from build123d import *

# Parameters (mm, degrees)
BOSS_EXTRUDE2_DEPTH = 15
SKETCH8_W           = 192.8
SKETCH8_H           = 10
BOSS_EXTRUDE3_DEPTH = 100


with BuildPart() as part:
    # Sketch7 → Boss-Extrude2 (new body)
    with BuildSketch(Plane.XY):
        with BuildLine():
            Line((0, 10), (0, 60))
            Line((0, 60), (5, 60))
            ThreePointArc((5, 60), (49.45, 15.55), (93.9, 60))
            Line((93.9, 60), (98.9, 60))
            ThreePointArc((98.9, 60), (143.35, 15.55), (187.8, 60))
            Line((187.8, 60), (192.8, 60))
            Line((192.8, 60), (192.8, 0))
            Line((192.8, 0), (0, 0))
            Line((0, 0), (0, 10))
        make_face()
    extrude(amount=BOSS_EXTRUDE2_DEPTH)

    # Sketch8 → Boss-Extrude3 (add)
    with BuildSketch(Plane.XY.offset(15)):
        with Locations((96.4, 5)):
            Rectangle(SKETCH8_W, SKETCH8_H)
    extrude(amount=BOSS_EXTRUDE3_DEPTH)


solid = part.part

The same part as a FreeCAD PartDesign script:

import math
import FreeCAD as App
import Part
import Sketcher


def add_polygon(sketch, points):
    """Adds a closed chain of lines whose ends are joined by coincident constraints."""
    first, n = sketch.GeometryCount, len(points)
    for a, b in zip(points, points[1:] + points[:1]):
        sketch.addGeometry(Part.LineSegment(App.Vector(*a, 0), App.Vector(*b, 0)), False)
    for i in range(n):
        sketch.addConstraint(Sketcher.Constraint("Coincident", first + i, 2, first + (i + 1) % n, 1))

doc = App.newDocument("Part")
body = doc.addObject("PartDesign::Body", "Body")

sketch1 = body.newObject("Sketcher::SketchObject", "Sketch")
sketch1.AttachmentSupport = (doc.getObject("XY_Plane"), [""])
sketch1.MapMode = "FlatFace"
sketch1.addGeometry([
    Part.LineSegment(App.Vector(5, 60, 0), App.Vector(0, 60, 0)),
    Part.LineSegment(App.Vector(0, 60, 0), App.Vector(0, 0, 0)),
    Part.LineSegment(App.Vector(0, 0, 0), App.Vector(192.8, 0, 0)),
    Part.LineSegment(App.Vector(192.8, 0, 0), App.Vector(192.8, 60, 0)),
    Part.LineSegment(App.Vector(192.8, 60, 0), App.Vector(187.8, 60, 0)),
    Part.ArcOfCircle(Part.Circle(App.Vector(143.35, 60, 0), App.Vector(0, 0, 1), 44.45), math.radians(180), math.radians(360)),
    Part.LineSegment(App.Vector(98.9, 60, 0), App.Vector(93.9, 60, 0)),
    Part.ArcOfCircle(Part.Circle(App.Vector(49.45, 60, 0), App.Vector(0, 0, 1), 44.45), math.radians(180), math.radians(360)),
], False)
sketch1.addConstraint([
    Sketcher.Constraint("Coincident", 0, 2, 1, 1),
    Sketcher.Constraint("Coincident", 1, 2, 2, 1),
    Sketcher.Constraint("Coincident", 2, 2, 3, 1),
    Sketcher.Constraint("Coincident", 3, 2, 4, 1),
    Sketcher.Constraint("Coincident", 4, 2, 5, 2),
    Sketcher.Constraint("Coincident", 5, 1, 6, 1),
    Sketcher.Constraint("Coincident", 6, 2, 7, 2),
    Sketcher.Constraint("Coincident", 7, 1, 0, 1),
    Sketcher.Constraint("Horizontal", 0),
    Sketcher.Constraint("Vertical", 1),
    Sketcher.Constraint("Horizontal", 2),
    Sketcher.Constraint("Vertical", 3),
    Sketcher.Constraint("Horizontal", 4),
    Sketcher.Constraint("Horizontal", 6),
    Sketcher.Constraint("Coincident", 1, 2, -1, 1),
    Sketcher.Constraint("Equal", 5, 7),
    Sketcher.Constraint("Horizontal", 5, 3, 7, 3),
    Sketcher.Constraint("Horizontal", 7, 3, 0, 2),
    Sketcher.Constraint("Horizontal", 0, 2, 3, 2),
    Sketcher.Constraint("Horizontal", 4, 2, 5, 1),
    Sketcher.Constraint("Equal", 0, 4),
    Sketcher.Constraint("Equal", 4, 6),
    Sketcher.Constraint("DistanceX", 0, 2, 0, 1, 5.0),
    Sketcher.Constraint("DistanceY", 1, 2, 1, 1, 60.0),
    Sketcher.Constraint("Radius", 5, 44.45),
])
pad1 = body.newObject("PartDesign::Pad", "Pad")
pad1.Profile = sketch1
pad1.Length = 15

sketch2 = body.newObject("Sketcher::SketchObject", "Sketch001")
sketch2.AttachmentSupport = (doc.getObject("XY_Plane"), [""])
sketch2.MapMode = "FlatFace"
sketch2.AttachmentOffset = App.Placement(App.Vector(0, 0, 15), App.Rotation())
add_polygon(sketch2, [(0, 10), (0, 0), (192.8, 0), (192.8, 10)])
sketch2.addConstraint([
    Sketcher.Constraint("Vertical", 0),
    Sketcher.Constraint("Horizontal", 1),
    Sketcher.Constraint("Vertical", 2),
    Sketcher.Constraint("Horizontal", 3),
    Sketcher.Constraint("Coincident", 0, 2, -1, 1),
    Sketcher.Constraint("DistanceY", 0, 2, 0, 1, 10.0),
    Sketcher.Constraint("DistanceX", 1, 1, 1, 2, 192.8),
])
pad2 = body.newObject("PartDesign::Pad", "Pad001")
pad2.Profile = sketch2
pad2.Length = 100

doc.recompute()
